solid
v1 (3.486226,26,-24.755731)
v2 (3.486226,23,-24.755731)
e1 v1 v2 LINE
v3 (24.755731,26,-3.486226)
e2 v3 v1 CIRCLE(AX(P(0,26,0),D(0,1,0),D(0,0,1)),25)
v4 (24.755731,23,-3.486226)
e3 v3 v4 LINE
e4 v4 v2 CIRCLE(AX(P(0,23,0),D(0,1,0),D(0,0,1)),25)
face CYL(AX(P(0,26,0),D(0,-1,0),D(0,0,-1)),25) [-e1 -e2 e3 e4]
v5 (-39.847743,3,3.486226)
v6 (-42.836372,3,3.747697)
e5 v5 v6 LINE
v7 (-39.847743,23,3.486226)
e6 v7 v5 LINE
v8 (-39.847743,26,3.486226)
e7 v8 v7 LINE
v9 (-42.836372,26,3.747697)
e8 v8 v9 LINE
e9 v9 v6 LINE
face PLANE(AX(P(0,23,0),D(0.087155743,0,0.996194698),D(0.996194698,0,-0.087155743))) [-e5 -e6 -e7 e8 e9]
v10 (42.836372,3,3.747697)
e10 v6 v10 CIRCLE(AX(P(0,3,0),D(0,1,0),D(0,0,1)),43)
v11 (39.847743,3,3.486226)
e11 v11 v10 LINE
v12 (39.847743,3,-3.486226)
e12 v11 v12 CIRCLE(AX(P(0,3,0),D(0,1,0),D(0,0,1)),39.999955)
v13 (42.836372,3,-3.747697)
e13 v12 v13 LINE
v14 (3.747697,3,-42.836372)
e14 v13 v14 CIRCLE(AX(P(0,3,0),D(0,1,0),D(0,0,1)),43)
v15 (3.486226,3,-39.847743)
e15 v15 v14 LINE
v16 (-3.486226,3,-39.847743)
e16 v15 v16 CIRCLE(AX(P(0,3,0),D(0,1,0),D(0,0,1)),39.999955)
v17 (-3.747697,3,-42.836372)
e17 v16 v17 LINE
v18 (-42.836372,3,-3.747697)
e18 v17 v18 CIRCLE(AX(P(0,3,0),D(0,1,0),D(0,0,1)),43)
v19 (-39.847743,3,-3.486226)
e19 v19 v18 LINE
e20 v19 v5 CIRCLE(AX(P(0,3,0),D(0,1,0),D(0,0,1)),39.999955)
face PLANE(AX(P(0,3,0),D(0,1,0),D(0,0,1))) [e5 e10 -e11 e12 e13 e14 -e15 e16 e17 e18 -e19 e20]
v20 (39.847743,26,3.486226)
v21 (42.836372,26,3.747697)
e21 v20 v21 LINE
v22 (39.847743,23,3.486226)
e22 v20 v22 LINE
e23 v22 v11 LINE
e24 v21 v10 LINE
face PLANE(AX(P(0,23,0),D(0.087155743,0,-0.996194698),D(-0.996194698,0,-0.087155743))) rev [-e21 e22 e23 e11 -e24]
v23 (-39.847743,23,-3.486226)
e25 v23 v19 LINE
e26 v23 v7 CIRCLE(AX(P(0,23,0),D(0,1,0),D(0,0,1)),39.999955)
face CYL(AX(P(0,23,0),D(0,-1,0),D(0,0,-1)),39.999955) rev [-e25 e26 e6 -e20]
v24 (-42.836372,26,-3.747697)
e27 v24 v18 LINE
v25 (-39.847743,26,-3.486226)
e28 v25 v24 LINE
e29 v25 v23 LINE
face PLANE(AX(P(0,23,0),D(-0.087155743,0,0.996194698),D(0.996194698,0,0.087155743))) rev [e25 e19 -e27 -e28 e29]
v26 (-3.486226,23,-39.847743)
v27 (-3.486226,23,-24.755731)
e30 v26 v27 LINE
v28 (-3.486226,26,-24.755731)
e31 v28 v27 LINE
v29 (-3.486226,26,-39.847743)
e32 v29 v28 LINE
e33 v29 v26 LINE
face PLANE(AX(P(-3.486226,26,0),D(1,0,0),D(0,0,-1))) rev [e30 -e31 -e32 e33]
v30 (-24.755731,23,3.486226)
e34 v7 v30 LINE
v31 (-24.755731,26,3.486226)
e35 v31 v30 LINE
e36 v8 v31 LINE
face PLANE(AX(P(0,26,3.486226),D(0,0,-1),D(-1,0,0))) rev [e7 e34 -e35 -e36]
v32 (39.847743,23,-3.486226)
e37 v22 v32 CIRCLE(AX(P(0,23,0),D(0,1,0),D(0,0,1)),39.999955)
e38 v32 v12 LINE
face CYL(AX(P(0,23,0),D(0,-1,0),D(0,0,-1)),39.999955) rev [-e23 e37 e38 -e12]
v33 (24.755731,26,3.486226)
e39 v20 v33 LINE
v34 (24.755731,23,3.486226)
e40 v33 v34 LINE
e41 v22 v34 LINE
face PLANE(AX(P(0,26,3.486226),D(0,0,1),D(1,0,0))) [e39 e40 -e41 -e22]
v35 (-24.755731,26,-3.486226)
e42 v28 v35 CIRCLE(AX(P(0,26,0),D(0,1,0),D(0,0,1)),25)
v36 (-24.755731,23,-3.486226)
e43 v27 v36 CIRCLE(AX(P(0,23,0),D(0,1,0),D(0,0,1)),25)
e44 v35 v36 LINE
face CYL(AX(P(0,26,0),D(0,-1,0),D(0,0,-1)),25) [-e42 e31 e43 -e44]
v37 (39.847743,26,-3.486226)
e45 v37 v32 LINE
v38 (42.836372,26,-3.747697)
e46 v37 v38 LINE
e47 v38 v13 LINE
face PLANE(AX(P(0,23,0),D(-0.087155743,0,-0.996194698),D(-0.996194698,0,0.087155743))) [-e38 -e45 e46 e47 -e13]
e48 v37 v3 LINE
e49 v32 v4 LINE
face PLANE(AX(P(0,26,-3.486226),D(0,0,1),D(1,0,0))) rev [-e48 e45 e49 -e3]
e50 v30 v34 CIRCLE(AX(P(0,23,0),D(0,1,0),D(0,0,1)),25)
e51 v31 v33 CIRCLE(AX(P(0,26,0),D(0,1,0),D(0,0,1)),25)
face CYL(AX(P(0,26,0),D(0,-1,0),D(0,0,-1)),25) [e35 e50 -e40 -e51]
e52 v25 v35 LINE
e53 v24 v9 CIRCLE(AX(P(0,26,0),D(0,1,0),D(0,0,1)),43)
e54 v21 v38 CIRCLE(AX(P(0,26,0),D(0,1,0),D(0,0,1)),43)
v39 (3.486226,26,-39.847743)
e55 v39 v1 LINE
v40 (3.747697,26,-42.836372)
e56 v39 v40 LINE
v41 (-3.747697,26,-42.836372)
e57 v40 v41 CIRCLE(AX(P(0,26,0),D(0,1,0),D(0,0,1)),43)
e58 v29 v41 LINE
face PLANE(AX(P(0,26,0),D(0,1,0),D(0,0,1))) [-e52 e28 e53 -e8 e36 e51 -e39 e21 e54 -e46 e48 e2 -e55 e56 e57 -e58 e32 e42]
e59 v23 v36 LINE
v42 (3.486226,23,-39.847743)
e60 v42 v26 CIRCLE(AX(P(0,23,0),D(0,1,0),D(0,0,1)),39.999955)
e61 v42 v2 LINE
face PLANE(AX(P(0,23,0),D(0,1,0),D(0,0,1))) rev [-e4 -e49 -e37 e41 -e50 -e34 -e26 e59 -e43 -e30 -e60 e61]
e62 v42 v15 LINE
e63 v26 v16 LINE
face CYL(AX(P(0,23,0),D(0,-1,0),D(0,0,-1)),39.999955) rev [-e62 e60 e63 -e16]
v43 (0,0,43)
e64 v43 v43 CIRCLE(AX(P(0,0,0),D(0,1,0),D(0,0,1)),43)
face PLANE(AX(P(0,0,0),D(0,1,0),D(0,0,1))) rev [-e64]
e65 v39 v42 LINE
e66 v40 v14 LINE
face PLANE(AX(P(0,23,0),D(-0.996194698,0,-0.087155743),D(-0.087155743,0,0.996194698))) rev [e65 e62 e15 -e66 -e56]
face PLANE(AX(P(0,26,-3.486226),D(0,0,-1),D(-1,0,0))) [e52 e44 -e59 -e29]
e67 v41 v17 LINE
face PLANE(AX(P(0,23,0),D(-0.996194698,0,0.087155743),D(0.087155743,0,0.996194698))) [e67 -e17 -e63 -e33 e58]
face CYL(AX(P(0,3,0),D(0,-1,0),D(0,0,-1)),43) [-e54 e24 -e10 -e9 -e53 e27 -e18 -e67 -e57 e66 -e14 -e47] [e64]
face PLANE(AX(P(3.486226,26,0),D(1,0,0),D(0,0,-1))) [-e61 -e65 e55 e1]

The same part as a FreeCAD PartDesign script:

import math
import FreeCAD as App
import Part
import Sketcher

V = App.Vector
Q = App.Units.Quantity

doc = App.newDocument("Part")
body = doc.addObject("PartDesign::Body", "Body")

# Sketch on XZ plane
sketch1 = body.newObject("Sketcher::SketchObject", "Sketch")
sketch1.AttachmentSupport = (doc.getObject("XZ_Plane"), [""])
sketch1.MapMode = "FlatFace"
sketch1.addGeometry(Part.Circle(V(0, 0, 0), V(0, 0, 1), 43), False)
sketch1.addConstraint(Sketcher.Constraint("Coincident", 0, 3, -1, 1))
sketch1.addConstraint(Sketcher.Constraint("Diameter", 0, Q("86 mm")))
pad1 = body.newObject("PartDesign::Pad", "Pad")
pad1.Profile = sketch1
pad1.Length = 3
pad1.Reversed = True

# Sketch on XZ plane
sketch2 = body.newObject("Sketcher::SketchObject", "Sketch001")
sketch2.AttachmentSupport = (doc.getObject("XZ_Plane"), [""])
sketch2.MapMode = "FlatFace"
sketch2.AttachmentOffset = App.Placement(V(0, 0, -3), App.Rotation())
sketch2.addGeometry(Part.ArcOfCircle(Part.Circle(V(0, 0, 0), V(0, 0, 1), 40), math.radians(-180), math.radians(-175)), False)
sketch2.addGeometry(Part.LineSegment(V(-39.8, -3.5, 0), V(-42.8, -3.7, 0)), False)
sketch2.addGeometry(Part.ArcOfCircle(Part.Circle(V(0, 0, 0), V(0, 0, 1), 43), math.radians(-180), math.radians(-175)), False)
sketch2.addGeometry(Part.ArcOfCircle(Part.Circle(V(0, 0, 0), V(0, 0, 1), 43), math.radians(175), math.radians(180)), False)
sketch2.addGeometry(Part.LineSegment(V(-42.8, 3.7, 0), V(-39.8, 3.5, 0)), False)
sketch2.addGeometry(Part.ArcOfCircle(Part.Circle(V(0, 0, 0), V(0, 0, 1), 40), math.radians(175), math.radians(180)), False)
sketch2.addGeometry(Part.ArcOfCircle(Part.Circle(V(0, 0, 0), V(0, 0, 1), 40), math.radians(-5), math.radians(0)), False)
sketch2.addGeometry(Part.ArcOfCircle(Part.Circle(V(0, 0, 0), V(0, 0, 1), 40), math.radians(0), math.radians(5)), False)
sketch2.addGeometry(Part.LineSegment(V(39.8, 3.5, 0), V(42.8, 3.7, 0)), False)
sketch2.addGeometry(Part.ArcOfCircle(Part.Circle(V(0, 0, 0), V(0, 0, 1), 43), math.radians(0), math.radians(5)), False)
sketch2.addGeometry(Part.ArcOfCircle(Part.Circle(V(0, 0, 0), V(0, 0, 1), 43), math.radians(-5), math.radians(0)), False)
sketch2.addGeometry(Part.LineSegment(V(42.8, -3.7, 0), V(39.8, -3.5, 0)), False)
sketch2.addGeometry(Part.ArcOfCircle(Part.Circle(V(0, 0, 0), V(0, 0, 1), 40), math.radians(-90), math.radians(-85)), False)
sketch2.addGeometry(Part.LineSegment(V(3.5, -39.8, 0), V(3.7, -42.8, 0)), False)
sketch2.addGeometry(Part.ArcOfCircle(Part.Circle(V(0, 0, 0), V(0, 0, 1), 43), math.radians(-90), math.radians(-85)), False)
sketch2.addGeometry(Part.ArcOfCircle(Part.Circle(V(0, 0, 0), V(0, 0, 1), 43), math.radians(-95), math.radians(-90)), False)
sketch2.addGeometry(Part.LineSegment(V(-3.7, -42.8, 0), V(-3.5, -39.8, 0)), False)
sketch2.addGeometry(Part.ArcOfCircle(Part.Circle(V(0, 0, 0), V(0, 0, 1), 40), math.radians(-95), math.radians(-90)), False)
sketch2.addConstraint(Sketcher.Constraint("Coincident", 0, 2, 1, 1))
sketch2.addConstraint(Sketcher.Constraint("Coincident", 1, 2, 2, 2))
sketch2.addConstraint(Sketcher.Constraint("Tangent", 2, 1, 3, 2))
sketch2.addConstraint(Sketcher.Constraint("Coincident", 3, 1, 4, 1))
sketch2.addConstraint(Sketcher.Constraint("Coincident", 4, 2, 5, 1))
sketch2.addConstraint(Sketcher.Constraint("Tangent", 5, 2, 0, 1))
sketch2.addConstraint(Sketcher.Constraint("Tangent", 6, 2, 7, 1))
sketch2.addConstraint(Sketcher.Constraint("Coincident", 7, 2, 8, 1))
sketch2.addConstraint(Sketcher.Constraint("Coincident", 8, 2, 9, 2))
sketch2.addConstraint(Sketcher.Constraint("Tangent", 9, 1, 10, 2))
sketch2.addConstraint(Sketcher.Constraint("Coincident", 10, 1, 11, 1))
sketch2.addConstraint(Sketcher.Constraint("Coincident", 11, 2, 6, 1))
sketch2.addConstraint(Sketcher.Constraint("Coincident", 12, 2, 13, 1))
sketch2.addConstraint(Sketcher.Constraint("Coincident", 13, 2, 14, 2))
sketch2.addConstraint(Sketcher.Constraint("Tangent", 14, 1, 15, 2))
sketch2.addConstraint(Sketcher.Constraint("Coincident", 15, 1, 16, 1))
sketch2.addConstraint(Sketcher.Constraint("Coincident", 16, 2, 17, 1))
sketch2.addConstraint(Sketcher.Constraint("Tangent", 17, 2, 12, 1))
sketch2.addConstraint(Sketcher.Constraint("Coincident", 0, 3, -1, 1))
sketch2.addConstraint(Sketcher.Constraint("Coincident", 2, 3, -1, 1))
sketch2.addConstraint(Sketcher.Constraint("Coincident", 6, 3, -1, 1))
sketch2.addConstraint(Sketcher.Constraint("Coincident", 9, 3, -1, 1))
sketch2.addConstraint(Sketcher.Constraint("Coincident", 12, 3, -1, 1))
sketch2.addConstraint(Sketcher.Constraint("Coincident", 14, 3, -1, 1))
sketch2.addConstraint(Sketcher.Constraint("Equal", 2, 3))
sketch2.addConstraint(Sketcher.Constraint("Equal", 0, 5))
sketch2.addConstraint(Sketcher.Constraint("Equal", 5, 6))
sketch2.addConstraint(Sketcher.Constraint("Equal", 6, 7))
sketch2.addConstraint(Sketcher.Constraint("Equal", 3, 9))
sketch2.addConstraint(Sketcher.Constraint("Equal", 9, 10))
sketch2.addConstraint(Sketcher.Constraint("Equal", 7, 12))
sketch2.addConstraint(Sketcher.Constraint("Equal", 10, 14))
sketch2.addConstraint(Sketcher.Constraint("Equal", 14, 15))
sketch2.addConstraint(Sketcher.Constraint("Equal", 12, 17))
sketch2.addConstraint(Sketcher.Constraint("PointOnObject", 2, 1, -1))
sketch2.addConstraint(Sketcher.Constraint("PointOnObject", 5, 2, -1))
sketch2.addConstraint(Sketcher.Constraint("PointOnObject", 6, 2, -1))
sketch2.addConstraint(Sketcher.Constraint("PointOnObject", 9, 1, -1))
sketch2.addConstraint(Sketcher.Constraint("PointOnObject", 14, 1, -2))
sketch2.addConstraint(Sketcher.Constraint("PointOnObject", 17, 2, -2))
sketch2.addConstraint(Sketcher.Constraint("Parallel", 1, 8))
sketch2.addConstraint(Sketcher.Constraint("Parallel", 4, 11))
sketch2.addConstraint(Sketcher.Constraint("Perpendicular", 8, 13))
sketch2.addConstraint(Sketcher.Constraint("Perpendicular", 11, 16))
sketch2.addConstraint(Sketcher.Constraint("Horizontal", 4, 2, 7, 2))
sketch2.addConstraint(Sketcher.Constraint("Horizontal", 3, 1, 8, 2))
sketch2.addConstraint(Sketcher.Constraint("Horizontal", 1, 2, 10, 1))
sketch2.addConstraint(Sketcher.Constraint("Horizontal", 13, 2, 15, 1))
sketch2.addConstraint(Sketcher.Constraint("Vertical", 1, 2, 3, 1))
sketch2.addConstraint(Sketcher.Constraint("Radius", 2, Q("43 mm")))
sketch2.addConstraint(Sketcher.Constraint("Angle", 1, Q("-175 deg")))
sketch2.addConstraint(Sketcher.Constraint("Radius", 0, Q("39.999955 mm")))
sketch2.addConstraint(Sketcher.Constraint("DistanceX", 1, 2, 7, 3, Q("42.836372 mm")))
sketch2.addConstraint(Sketcher.Constraint("DistanceY", 13, 2, 5, 3, Q("42.836372 mm")))
pad2 = body.newObject("PartDesign::Pad", "Pad001")
pad2.Profile = sketch2
pad2.Length = 20
pad2.Reversed = True

# Sketch on XZ plane
sketch3 = body.newObject("Sketcher::SketchObject", "Sketch002")
sketch3.AttachmentSupport = (doc.getObject("XZ_Plane"), [""])
sketch3.MapMode = "FlatFace"
sketch3.AttachmentOffset = App.Placement(V(0, 0, -23), App.Rotation())
sketch3.addGeometry(Part.LineSegment(V(-42.8, 3.7, 0), V(-39.8, 3.5, 0)), False)
sketch3.addGeometry(Part.LineSegment(V(-39.8, 3.5, 0), V(-24.8, 3.5, 0)), False)
sketch3.addGeometry(Part.ArcOfCircle(Part.Circle(V(0, 0, 0), V(0, 0, 1), 25), math.radians(8), math.radians(172)), False)
sketch3.addGeometry(Part.LineSegment(V(24.8, 3.5, 0), V(39.8, 3.5, 0)), False)
sketch3.addGeometry(Part.LineSegment(V(39.8, 3.5, 0), V(42.8, 3.7, 0)), False)
sketch3.addGeometry(Part.ArcOfCircle(Part.Circle(V(0, 0, 0), V(0, 0, 1), 43), math.radians(-5), math.radians(5)), False)
sketch3.addGeometry(Part.LineSegment(V(42.8, -3.7, 0), V(39.8, -3.5, 0)), False)
sketch3.addGeometry(Part.LineSegment(V(39.8, -3.5, 0), V(24.8, -3.5, 0)), False)
sketch3.addGeometry(Part.ArcOfCircle(Part.Circle(V(0, 0, 0), V(0, 0, 1), 25), math.radians(-82), math.radians(-8)), False)
sketch3.addGeometry(Part.LineSegment(V(3.5, -24.8, 0), V(3.5, -39.8, 0)), False)
sketch3.addGeometry(Part.LineSegment(V(3.5, -39.8, 0), V(3.7, -42.8, 0)), False)
sketch3.addGeometry(Part.ArcOfCircle(Part.Circle(V(0, 0, 0), V(0, 0, 1), 43), math.radians(-95), math.radians(-85)), False)
sketch3.addGeometry(Part.LineSegment(V(-3.7, -42.8, 0), V(-3.5, -39.8, 0)), False)
sketch3.addGeometry(Part.LineSegment(V(-3.5, -39.8, 0), V(-3.5, -24.8, 0)), False)
sketch3.addGeometry(Part.ArcOfCircle(Part.Circle(V(0, 0, 0), V(0, 0, 1), 25), math.radians(-172), math.radians(-98)), False)
sketch3.addGeometry(Part.LineSegment(V(-24.8, -3.5, 0), V(-39.8, -3.5, 0)), False)
sketch3.addGeometry(Part.LineSegment(V(-39.8, -3.5, 0), V(-42.8, -3.7, 0)), False)
sketch3.addGeometry(Part.ArcOfCircle(Part.Circle(V(0, 0, 0), V(0, 0, 1), 43), math.radians(175), math.radians(185)), False)
sketch3.addConstraint(Sketcher.Constraint("Coincident", 0, 2, 1, 1))
sketch3.addConstraint(Sketcher.Constraint("Coincident", 1, 2, 2, 2))
sketch3.addConstraint(Sketcher.Constraint("Coincident", 2, 1, 3, 1))
sketch3.addConstraint(Sketcher.Constraint("Coincident", 3, 2, 4, 1))
sketch3.addConstraint(Sketcher.Constraint("Coincident", 4, 2, 5, 2))
sketch3.addConstraint(Sketcher.Constraint("Coincident", 5, 1, 6, 1))
sketch3.addConstraint(Sketcher.Constraint("Coincident", 6, 2, 7, 1))
sketch3.addConstraint(Sketcher.Constraint("Coincident", 7, 2, 8, 2))
sketch3.addConstraint(Sketcher.Constraint("Coincident", 8, 1, 9, 1))
sketch3.addConstraint(Sketcher.Constraint("Coincident", 9, 2, 10, 1))
sketch3.addConstraint(Sketcher.Constraint("Coincident", 10, 2, 11, 2))
sketch3.addConstraint(Sketcher.Constraint("Coincident", 11, 1, 12, 1))
sketch3.addConstraint(Sketcher.Constraint("Coincident", 12, 2, 13, 1))
sketch3.addConstraint(Sketcher.Constraint("Coincident", 13, 2, 14, 2))
sketch3.addConstraint(Sketcher.Constraint("Coincident", 14, 1, 15, 1))
sketch3.addConstraint(Sketcher.Constraint("Coincident", 15, 2, 16, 1))
sketch3.addConstraint(Sketcher.Constraint("Coincident", 16, 2, 17, 2))
sketch3.addConstraint(Sketcher.Constraint("Coincident", 17, 1, 0, 1))
sketch3.addConstraint(Sketcher.Constraint("Horizontal", 1))
sketch3.addConstraint(Sketcher.Constraint("Horizontal", 3))
sketch3.addConstraint(Sketcher.Constraint("Horizontal", 7))
sketch3.addConstraint(Sketcher.Constraint("Vertical", 9))
sketch3.addConstraint(Sketcher.Constraint("Vertical", 13))
sketch3.addConstraint(Sketcher.Constraint("Horizontal", 15))
sketch3.addConstraint(Sketcher.Constraint("Coincident", 2, 3, -1, 1))
sketch3.addConstraint(Sketcher.Constraint("Coincident", 5, 3, -1, 1))
sketch3.addConstraint(Sketcher.Constraint("Coincident", 8, 3, -1, 1))
sketch3.addConstraint(Sketcher.Constraint("Coincident", 11, 3, -1, 1))
sketch3.addConstraint(Sketcher.Constraint("Coincident", 14, 3, -1, 1))
sketch3.addConstraint(Sketcher.Constraint("Coincident", 17, 3, -1, 1))
sketch3.addConstraint(Sketcher.Constraint("Equal", 2, 8))
sketch3.addConstraint(Sketcher.Constraint("Equal", 5, 11))
sketch3.addConstraint(Sketcher.Constraint("Equal", 8, 14))
sketch3.addConstraint(Sketcher.Constraint("Equal", 11, 17))
sketch3.addConstraint(Sketcher.Constraint("Symmetric", 0, 2, 6, 2, -1, 1))
sketch3.addConstraint(Sketcher.Constraint("Symmetric", 3, 2, 15, 2, -1, 1))
sketch3.addConstraint(Sketcher.Constraint("Symmetric", 0, 2, 3, 2, -2))
sketch3.addConstraint(Sketcher.Constraint("Symmetric", 9, 2, 12, 2, -2))
sketch3.addConstraint(Sketcher.Constraint("Parallel", 0, 6))
sketch3.addConstraint(Sketcher.Constraint("Perpendicular", 4, 10))
sketch3.addConstraint(Sketcher.Constraint("Perpendicular", 6, 12))
sketch3.addConstraint(Sketcher.Constraint("Perpendicular", 10, 16))
sketch3.addConstraint(Sketcher.Constraint("Horizontal", 10, 2, 11, 1))
sketch3.addConstraint(Sketcher.Constraint("Equal", 15, 9))
sketch3.addConstraint(Sketcher.Constraint("Equal", 6, 10))
sketch3.addConstraint(Sketcher.Constraint("Radius", 2, Q("25 mm")))
sketch3.addConstraint(Sketcher.Constraint("Radius", 5, Q("43 mm")))
sketch3.addConstraint(Sketcher.Constraint("Angle", 0, Q("-5 deg")))
sketch3.addConstraint(Sketcher.Constraint("DistanceX", 1, 1, 1, 2, Q("15.092011 mm")))
sketch3.addConstraint(Sketcher.Constraint("DistanceX", 1, 2, -1, 1, Q("24.755731 mm")))
pad3 = body.newObject("PartDesign::Pad", "Pad002")
pad3.Profile = sketch3
pad3.Length = 3
pad3.Reversed = True

doc.recompute()
